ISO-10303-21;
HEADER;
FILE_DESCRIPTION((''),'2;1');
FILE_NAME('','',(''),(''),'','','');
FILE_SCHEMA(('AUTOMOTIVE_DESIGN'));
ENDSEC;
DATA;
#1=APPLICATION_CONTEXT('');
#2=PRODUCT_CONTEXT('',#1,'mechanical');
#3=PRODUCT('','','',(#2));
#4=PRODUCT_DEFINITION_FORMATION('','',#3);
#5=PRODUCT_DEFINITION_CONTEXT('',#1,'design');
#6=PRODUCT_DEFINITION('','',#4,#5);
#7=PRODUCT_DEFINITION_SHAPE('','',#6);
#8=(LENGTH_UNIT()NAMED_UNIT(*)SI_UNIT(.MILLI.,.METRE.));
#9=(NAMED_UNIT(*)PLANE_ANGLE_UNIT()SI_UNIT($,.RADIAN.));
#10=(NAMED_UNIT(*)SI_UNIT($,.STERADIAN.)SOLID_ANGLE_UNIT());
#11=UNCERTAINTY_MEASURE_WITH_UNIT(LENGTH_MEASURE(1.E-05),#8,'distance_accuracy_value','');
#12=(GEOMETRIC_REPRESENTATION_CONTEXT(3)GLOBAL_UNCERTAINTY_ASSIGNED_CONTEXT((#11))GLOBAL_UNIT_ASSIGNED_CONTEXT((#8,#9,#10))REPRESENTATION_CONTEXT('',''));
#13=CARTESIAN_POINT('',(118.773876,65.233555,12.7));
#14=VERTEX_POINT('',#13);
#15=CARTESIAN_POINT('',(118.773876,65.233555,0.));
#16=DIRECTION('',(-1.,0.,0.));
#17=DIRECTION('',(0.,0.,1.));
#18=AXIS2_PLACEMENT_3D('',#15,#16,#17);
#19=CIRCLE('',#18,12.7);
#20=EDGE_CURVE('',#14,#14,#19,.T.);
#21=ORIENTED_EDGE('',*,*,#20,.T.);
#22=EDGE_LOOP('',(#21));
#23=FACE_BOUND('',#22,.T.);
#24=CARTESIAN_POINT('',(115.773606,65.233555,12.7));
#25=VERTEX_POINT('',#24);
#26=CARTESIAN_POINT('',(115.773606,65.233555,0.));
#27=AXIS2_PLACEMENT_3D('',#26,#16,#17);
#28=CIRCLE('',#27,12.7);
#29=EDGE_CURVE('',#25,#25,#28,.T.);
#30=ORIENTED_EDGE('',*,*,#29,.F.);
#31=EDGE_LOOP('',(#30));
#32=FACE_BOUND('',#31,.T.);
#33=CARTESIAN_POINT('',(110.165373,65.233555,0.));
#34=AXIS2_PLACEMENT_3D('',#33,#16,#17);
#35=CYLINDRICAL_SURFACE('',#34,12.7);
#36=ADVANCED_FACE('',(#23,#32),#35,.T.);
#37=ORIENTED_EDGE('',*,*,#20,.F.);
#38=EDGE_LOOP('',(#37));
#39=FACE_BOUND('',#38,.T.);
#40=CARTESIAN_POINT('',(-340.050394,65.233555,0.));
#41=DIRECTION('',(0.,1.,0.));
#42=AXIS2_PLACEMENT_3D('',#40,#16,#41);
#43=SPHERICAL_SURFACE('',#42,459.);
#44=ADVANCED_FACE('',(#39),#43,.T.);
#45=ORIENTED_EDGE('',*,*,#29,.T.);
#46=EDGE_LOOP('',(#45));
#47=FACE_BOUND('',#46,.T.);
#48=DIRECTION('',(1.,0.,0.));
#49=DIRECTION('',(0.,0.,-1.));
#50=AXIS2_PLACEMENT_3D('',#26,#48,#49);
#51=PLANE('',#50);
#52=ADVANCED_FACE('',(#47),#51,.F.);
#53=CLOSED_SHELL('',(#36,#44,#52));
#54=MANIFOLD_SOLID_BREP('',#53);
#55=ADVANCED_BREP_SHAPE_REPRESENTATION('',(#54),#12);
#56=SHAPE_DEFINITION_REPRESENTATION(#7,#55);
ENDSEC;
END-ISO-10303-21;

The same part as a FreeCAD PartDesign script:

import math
import FreeCAD as App
import Part
import Sketcher

V = App.Vector
Q = App.Units.Quantity

doc = App.newDocument("Part")
body = doc.addObject("PartDesign::Body", "Body")

sketch1 = body.newObject("Sketcher::SketchObject", "Sketch")
sketch1.AttachmentSupport = (doc.getObject("XY_Plane"), [""])
sketch1.MapMode = "FlatFace"
sketch1.addGeometry(Part.LineSegment(V(115.773606, 77.933555, 0), V(115.773606, 65.233555, 0)), False)
sketch1.addGeometry(Part.LineSegment(V(115.773606, 65.233555, 0), V(118.949606, 65.233555, 0)), False)
sketch1.addGeometry(Part.ArcOfCircle(Part.Circle(V(-340.050396, 65.233555, 0), V(0, 0, 1), 459.000002), math.radians(0), math.radians(1.58551)), False)
sketch1.addGeometry(Part.LineSegment(V(118.773876, 77.933555, 0), V(115.773606, 77.933555, 0)), False)
sketch1.addGeometry(Part.LineSegment(V(-340.050396, 65.233555, 0), V(118.949606, 65.233555, 0)), True)
sketch1.addConstraint(Sketcher.Constraint("Coincident", 0, 2, 1, 1))
sketch1.addConstraint(Sketcher.Constraint("Coincident", 1, 2, 2, 1))
sketch1.addConstraint(Sketcher.Constraint("Coincident", 2, 2, 3, 1))
sketch1.addConstraint(Sketcher.Constraint("Coincident", 3, 2, 0, 1))
sketch1.addConstraint(Sketcher.Constraint("Vertical", 0))
sketch1.addConstraint(Sketcher.Constraint("Horizontal", 1))
sketch1.addConstraint(Sketcher.Constraint("Horizontal", 3))
sketch1.addConstraint(Sketcher.Constraint("Horizontal", 4))
sketch1.addConstraint(Sketcher.Constraint("Coincident", 4, 1, 2, 3))
sketch1.addConstraint(Sketcher.Constraint("Coincident", 4, 2, 1, 2))
sketch1.addConstraint(Sketcher.Constraint("DistanceY", 0, 2, 0, 1, Q("0.5 in")))
sketch1.addConstraint(Sketcher.Constraint("DistanceX", 1, 1, 1, 2, Q("3.176 mm")))
sketch1.addConstraint(Sketcher.Constraint("Radius", 2, Q("459.000002 mm")))
sketch1.addConstraint(Sketcher.Constraint("DistanceX", 2, 3, -1, 1, Q("340.050396 mm")))
sketch1.addConstraint(Sketcher.Constraint("DistanceY", -1, 1, 2, 3, Q("65.233555 mm")))
revolution = body.newObject("PartDesign::Revolution", "Revolution")
revolution.Profile = sketch1
revolution.ReferenceAxis = (sketch1, ["Axis0"])
revolution.Angle = 360

doc.recompute()
